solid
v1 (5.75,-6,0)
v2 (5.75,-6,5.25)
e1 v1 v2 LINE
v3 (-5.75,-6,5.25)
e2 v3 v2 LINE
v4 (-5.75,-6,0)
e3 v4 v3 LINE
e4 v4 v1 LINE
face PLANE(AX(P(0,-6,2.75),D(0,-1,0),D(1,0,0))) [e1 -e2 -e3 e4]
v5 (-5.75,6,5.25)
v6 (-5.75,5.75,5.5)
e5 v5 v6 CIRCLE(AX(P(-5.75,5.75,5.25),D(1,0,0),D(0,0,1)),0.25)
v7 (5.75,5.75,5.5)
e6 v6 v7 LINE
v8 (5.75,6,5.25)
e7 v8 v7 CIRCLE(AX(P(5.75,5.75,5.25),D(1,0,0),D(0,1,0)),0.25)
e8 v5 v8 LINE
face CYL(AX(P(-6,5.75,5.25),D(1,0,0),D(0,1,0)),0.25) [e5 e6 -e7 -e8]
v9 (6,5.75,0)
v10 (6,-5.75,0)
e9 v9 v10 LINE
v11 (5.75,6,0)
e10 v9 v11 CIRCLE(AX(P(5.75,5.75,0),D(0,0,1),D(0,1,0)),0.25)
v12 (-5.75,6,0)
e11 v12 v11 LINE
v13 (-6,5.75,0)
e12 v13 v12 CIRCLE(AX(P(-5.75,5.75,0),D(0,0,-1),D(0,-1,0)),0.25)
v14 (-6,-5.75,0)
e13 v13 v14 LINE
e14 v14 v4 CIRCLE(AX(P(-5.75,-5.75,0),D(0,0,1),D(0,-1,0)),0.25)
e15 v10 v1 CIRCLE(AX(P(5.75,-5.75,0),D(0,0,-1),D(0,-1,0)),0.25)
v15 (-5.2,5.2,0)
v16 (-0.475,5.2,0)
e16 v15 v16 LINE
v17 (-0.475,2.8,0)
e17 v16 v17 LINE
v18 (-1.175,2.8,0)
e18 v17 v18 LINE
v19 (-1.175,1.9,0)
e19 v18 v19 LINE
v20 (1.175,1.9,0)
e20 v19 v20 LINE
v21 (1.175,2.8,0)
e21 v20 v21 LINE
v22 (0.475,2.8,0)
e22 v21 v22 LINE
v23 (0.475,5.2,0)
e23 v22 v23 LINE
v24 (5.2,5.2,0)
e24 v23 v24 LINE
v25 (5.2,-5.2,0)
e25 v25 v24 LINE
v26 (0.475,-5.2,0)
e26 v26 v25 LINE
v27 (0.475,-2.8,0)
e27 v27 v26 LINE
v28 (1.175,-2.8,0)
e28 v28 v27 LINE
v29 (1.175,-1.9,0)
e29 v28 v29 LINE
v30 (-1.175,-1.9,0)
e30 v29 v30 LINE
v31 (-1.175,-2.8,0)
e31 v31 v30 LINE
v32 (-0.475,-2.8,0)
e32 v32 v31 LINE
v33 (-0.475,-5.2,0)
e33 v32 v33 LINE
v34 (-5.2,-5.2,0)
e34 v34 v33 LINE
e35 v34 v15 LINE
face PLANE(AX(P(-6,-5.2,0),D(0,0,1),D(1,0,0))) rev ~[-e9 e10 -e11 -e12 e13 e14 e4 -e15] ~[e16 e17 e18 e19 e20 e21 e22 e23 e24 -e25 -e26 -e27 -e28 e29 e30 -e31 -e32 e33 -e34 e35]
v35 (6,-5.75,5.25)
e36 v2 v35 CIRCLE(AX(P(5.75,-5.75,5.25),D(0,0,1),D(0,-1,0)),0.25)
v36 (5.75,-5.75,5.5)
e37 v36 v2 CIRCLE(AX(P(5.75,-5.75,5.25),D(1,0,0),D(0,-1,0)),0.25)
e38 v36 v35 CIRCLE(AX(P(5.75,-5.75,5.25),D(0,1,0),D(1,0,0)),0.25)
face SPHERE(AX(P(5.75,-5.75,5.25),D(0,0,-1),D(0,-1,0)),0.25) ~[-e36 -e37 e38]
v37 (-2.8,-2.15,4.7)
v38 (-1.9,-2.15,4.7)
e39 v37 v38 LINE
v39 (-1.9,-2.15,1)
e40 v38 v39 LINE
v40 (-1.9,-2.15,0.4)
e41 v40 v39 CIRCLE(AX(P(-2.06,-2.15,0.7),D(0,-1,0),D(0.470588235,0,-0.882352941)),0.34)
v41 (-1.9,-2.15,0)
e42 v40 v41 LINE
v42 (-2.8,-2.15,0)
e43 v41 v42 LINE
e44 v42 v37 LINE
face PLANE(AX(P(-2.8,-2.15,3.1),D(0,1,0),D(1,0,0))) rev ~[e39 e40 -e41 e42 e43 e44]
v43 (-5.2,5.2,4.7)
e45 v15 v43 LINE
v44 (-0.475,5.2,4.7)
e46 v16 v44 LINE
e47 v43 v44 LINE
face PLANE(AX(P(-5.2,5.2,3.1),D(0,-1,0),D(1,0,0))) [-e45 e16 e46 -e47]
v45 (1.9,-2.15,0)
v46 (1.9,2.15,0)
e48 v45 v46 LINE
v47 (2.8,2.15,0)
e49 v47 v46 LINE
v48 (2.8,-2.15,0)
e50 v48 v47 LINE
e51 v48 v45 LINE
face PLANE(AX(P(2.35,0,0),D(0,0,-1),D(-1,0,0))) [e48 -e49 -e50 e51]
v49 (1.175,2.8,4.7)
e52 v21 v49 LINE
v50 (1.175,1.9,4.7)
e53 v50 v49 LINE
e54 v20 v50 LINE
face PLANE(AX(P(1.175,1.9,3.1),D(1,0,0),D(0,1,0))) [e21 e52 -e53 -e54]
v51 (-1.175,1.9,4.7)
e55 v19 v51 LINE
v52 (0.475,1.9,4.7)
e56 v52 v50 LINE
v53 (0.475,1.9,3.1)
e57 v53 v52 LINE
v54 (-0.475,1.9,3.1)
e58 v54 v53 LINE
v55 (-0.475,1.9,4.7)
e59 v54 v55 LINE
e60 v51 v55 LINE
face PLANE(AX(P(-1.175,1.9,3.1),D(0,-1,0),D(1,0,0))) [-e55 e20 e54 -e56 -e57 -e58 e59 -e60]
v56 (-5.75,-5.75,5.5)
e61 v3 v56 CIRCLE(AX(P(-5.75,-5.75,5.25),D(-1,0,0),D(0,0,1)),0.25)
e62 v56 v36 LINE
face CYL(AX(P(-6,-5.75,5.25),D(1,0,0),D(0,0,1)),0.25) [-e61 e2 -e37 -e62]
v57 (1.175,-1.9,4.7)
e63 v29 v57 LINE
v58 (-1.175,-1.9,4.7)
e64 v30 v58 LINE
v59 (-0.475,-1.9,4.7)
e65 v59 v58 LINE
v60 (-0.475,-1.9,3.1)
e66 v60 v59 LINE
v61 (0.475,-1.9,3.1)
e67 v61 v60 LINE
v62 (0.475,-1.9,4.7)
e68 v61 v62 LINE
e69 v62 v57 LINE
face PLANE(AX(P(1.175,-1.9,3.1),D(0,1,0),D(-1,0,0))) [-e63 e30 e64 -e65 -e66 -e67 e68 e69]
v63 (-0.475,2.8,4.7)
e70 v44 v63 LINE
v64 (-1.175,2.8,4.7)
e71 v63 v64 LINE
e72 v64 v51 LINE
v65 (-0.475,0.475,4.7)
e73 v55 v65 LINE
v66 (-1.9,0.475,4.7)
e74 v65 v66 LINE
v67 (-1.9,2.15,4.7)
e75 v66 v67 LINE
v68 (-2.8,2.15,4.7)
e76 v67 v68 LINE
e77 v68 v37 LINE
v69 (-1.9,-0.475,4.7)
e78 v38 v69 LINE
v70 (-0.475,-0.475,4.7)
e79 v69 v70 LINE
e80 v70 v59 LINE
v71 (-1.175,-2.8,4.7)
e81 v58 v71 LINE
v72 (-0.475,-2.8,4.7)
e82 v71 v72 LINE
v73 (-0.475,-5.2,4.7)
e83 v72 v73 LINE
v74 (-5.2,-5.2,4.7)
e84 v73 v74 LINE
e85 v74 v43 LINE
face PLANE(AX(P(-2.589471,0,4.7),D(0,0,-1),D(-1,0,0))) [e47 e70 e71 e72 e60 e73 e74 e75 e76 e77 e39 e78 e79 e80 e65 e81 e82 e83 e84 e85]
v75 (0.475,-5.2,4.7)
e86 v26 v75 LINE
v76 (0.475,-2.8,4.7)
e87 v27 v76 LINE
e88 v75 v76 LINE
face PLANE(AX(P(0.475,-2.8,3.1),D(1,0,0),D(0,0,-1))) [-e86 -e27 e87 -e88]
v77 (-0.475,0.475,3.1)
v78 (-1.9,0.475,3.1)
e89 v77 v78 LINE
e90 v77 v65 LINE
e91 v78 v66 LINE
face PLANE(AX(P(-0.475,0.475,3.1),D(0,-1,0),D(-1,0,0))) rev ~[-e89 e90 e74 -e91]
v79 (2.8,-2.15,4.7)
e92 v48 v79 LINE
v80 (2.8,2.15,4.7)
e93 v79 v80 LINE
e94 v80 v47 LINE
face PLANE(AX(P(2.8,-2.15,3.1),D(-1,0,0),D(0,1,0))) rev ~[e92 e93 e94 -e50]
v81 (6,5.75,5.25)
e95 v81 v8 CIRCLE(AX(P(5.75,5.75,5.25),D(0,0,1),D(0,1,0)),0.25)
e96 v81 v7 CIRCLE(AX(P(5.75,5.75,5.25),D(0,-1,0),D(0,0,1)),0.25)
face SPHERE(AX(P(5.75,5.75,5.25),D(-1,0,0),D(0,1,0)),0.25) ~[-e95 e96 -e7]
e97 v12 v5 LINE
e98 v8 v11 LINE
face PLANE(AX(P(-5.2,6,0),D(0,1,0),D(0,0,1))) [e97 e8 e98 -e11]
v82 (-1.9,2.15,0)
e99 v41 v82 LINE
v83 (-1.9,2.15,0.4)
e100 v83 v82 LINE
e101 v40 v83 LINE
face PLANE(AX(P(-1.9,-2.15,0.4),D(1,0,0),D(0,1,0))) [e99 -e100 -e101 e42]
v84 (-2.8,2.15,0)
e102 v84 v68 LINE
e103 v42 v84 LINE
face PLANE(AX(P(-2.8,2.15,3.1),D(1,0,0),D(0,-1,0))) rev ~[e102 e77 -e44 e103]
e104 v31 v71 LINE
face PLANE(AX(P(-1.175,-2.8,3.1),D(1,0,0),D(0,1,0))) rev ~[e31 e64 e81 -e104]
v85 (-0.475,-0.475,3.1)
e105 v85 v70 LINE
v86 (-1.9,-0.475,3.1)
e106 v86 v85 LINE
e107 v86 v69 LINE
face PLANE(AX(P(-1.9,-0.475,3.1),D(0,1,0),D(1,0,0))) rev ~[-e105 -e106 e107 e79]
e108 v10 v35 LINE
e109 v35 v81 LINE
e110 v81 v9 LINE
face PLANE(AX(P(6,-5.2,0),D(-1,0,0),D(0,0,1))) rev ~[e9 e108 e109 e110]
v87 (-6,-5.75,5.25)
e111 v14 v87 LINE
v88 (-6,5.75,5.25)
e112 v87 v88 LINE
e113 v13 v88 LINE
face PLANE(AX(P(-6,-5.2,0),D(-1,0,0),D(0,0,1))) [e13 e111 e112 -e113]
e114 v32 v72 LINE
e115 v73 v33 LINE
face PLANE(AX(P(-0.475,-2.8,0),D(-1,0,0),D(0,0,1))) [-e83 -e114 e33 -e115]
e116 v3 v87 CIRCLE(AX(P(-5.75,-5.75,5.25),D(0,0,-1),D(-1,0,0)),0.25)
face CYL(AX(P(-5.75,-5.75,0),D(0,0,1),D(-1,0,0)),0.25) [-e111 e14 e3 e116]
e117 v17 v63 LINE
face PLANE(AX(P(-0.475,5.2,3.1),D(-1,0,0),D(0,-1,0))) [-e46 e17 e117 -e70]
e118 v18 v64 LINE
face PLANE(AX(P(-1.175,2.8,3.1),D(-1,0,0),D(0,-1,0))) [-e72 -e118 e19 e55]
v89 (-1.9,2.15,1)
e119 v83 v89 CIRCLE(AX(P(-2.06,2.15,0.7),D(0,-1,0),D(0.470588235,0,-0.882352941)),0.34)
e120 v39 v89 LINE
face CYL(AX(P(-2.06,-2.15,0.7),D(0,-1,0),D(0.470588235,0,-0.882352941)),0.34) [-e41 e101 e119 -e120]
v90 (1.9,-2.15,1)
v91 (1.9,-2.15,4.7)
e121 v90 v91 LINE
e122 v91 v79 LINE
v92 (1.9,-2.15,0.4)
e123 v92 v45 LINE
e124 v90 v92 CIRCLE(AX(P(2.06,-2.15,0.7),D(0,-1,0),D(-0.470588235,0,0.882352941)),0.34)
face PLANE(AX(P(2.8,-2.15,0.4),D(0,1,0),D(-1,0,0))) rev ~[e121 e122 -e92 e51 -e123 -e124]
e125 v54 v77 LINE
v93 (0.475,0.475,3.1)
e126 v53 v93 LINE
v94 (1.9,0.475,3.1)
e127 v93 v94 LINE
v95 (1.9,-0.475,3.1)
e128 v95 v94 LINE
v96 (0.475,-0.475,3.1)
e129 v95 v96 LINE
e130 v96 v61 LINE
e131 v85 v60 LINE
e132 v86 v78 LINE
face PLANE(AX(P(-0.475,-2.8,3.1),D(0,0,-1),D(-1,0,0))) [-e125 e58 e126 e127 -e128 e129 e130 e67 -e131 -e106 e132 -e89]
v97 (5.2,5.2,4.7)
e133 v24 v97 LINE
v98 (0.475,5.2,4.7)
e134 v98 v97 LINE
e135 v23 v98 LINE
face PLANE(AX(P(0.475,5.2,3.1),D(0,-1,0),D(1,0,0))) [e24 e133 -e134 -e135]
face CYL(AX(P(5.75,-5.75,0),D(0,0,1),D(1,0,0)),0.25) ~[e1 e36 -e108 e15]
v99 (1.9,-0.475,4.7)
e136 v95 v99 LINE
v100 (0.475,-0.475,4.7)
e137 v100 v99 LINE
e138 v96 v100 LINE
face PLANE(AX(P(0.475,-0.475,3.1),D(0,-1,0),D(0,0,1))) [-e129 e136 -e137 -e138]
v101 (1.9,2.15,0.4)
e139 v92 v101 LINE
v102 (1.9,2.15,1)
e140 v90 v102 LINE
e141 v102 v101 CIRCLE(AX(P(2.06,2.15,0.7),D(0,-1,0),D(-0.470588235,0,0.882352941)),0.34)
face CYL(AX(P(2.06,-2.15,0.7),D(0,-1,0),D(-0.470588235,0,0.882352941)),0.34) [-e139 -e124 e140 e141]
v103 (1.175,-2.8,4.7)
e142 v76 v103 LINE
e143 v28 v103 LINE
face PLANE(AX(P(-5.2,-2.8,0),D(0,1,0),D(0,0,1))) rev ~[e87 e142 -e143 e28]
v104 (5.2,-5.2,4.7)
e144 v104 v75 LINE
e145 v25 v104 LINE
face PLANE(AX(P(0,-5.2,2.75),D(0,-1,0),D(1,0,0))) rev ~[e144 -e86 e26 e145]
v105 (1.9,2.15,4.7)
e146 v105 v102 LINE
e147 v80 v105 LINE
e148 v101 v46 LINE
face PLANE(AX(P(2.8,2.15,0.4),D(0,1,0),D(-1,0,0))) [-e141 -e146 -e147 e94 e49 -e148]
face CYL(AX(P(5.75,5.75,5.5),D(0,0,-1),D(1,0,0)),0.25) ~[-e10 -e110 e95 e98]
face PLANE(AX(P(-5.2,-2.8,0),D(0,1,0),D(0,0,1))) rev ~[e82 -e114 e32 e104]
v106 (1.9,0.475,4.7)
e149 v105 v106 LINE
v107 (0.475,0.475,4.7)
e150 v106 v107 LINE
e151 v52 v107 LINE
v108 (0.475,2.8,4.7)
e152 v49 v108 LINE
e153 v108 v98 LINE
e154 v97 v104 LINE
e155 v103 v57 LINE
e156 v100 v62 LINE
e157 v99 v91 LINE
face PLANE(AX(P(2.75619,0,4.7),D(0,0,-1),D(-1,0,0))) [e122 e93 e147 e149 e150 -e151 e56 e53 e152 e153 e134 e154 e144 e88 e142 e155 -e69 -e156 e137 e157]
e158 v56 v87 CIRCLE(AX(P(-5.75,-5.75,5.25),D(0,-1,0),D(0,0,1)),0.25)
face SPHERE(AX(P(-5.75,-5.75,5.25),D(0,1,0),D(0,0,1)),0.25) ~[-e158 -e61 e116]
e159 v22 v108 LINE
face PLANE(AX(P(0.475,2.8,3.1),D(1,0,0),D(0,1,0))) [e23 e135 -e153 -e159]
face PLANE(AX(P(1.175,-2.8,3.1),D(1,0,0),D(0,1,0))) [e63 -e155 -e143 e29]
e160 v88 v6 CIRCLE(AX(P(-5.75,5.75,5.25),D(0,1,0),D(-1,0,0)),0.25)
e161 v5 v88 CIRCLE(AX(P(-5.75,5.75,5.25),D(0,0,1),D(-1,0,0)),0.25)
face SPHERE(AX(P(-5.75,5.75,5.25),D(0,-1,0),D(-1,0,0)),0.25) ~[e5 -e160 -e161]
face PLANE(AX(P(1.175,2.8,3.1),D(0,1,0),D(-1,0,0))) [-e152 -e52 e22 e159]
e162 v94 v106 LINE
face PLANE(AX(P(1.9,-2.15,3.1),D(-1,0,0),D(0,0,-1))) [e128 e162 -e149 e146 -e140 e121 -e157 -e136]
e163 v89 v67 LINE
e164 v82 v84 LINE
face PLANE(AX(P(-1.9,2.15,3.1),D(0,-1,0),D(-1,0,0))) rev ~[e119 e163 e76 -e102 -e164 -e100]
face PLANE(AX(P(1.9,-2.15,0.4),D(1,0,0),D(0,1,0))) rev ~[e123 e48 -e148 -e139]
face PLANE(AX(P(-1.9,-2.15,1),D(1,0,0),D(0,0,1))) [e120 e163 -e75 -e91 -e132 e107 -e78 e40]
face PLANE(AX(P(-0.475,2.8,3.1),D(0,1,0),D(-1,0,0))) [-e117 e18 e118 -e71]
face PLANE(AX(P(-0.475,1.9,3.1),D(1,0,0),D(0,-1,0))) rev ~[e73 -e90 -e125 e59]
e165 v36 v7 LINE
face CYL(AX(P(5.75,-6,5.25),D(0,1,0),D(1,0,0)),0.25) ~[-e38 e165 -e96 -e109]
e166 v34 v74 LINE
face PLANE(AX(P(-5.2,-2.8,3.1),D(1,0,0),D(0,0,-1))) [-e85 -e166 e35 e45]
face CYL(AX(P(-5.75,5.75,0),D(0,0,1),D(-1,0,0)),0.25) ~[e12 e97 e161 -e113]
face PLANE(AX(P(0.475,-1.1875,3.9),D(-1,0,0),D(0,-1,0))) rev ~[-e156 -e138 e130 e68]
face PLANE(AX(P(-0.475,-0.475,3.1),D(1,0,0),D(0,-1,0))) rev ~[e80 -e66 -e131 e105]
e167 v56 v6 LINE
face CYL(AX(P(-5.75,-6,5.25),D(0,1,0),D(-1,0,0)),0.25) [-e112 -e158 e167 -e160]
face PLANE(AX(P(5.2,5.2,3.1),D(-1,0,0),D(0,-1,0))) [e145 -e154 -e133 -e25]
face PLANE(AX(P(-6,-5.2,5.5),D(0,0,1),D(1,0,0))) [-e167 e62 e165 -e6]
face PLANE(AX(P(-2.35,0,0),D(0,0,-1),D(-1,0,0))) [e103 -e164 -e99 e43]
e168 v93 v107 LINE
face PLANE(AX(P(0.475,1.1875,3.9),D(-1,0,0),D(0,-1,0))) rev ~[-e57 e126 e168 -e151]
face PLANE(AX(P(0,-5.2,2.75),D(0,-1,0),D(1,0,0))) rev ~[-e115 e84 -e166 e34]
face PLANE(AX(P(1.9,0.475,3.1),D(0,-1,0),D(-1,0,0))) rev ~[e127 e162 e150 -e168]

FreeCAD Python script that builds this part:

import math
import FreeCAD as App
import Part
import Sketcher
Q = App.Units.Quantity


def edges_at(feature, points):
    """Names of the edges that pass closest to the given points."""
    edges = feature.Shape.Edges
    near = lambda p: min(range(len(edges)), key=lambda i: edges[i].distToShape(Part.Vertex(*p))[0])
    return sorted({f"Edge{near(p) + 1}" for p in points})

doc = App.newDocument("Part")
params = doc.addObject("Spreadsheet::Sheet", "Params")
for row, (alias, value) in enumerate([
    ("sketch1_radius", "0.34 mm"),
    ("sketch1_width", "0.9 mm"),
    ("sketch1_width2", "5.6 mm"),
    ("sketch1_height", "5.1 mm"),
    ("sketch1_height2", "2.1 mm"),
    ("pad1_length", "4.3 mm"),
    ("sketch2_width", "5.6 mm"),
    ("sketch2_height", "2.4 mm"),
    ("pad2_length", "0.65 mm"),
    ("sketch3_height", "2.4 mm"),
    ("sketch3_width", "4.95 mm"),
    ("pad3_length", "2.4 mm"),
    ("sketch4_width", "8 mm"),
    ("sketch4_height", "2.4 mm"),
    ("pad4_length", "3.85 mm"),
    ("sketch5_width", "8.8 mm"),
    ("sketch5_height", "2.4 mm"),
    ("pad5_length", "3.2 mm"),
    ("sketch6_height", "8 mm"),
    ("sketch6_width", "11.2 mm"),
    ("sketch6_width2", "0.8 mm"),
    ("sketch6_width3", "0.7 mm"),
    ("sketch6_height2", "2.4 mm"),
    ("pad6_length", "3.1 mm"),
    ("sketch7_width", "0.9 mm"),
    ("sketch7_height", "4.3 mm"),
    ("pad7_length", "0.4 mm"),
    ("sketch8_width", "0.9 mm"),
    ("sketch8_height", "4.3 mm"),
    ("pad8_length", "0.4 mm"),
    ("sketch9_width", "8.8 mm"),
    ("sketch9_height", "5.5 mm"),
    ("pad9_length", "0.8 mm"),
    ("sketch10_width", "12 mm"),
    ("sketch10_width2", "0.8 mm"),
    ("sketch10_height", "3.1 mm"),
    ("sketch10_height2", "5.5 mm"),
    ("sketch10_width3", "0.95 mm"),
    ("pad10_length", "2.4 mm"),
    ("sketch11_width", "12 mm"),
    ("sketch11_height", "5.5 mm"),
    ("pad11_length", "0.8 mm"),
    ("sketch12_width", "0.7 mm"),
    ("sketch12_width2", "0.9 mm"),
    ("sketch12_height", "2.4 mm"),
    ("sketch12_height2", "10.4 mm"),
    ("sketch12_height3", "4.3 mm"),
    ("pocket1_length", "1.6 mm"),
    ("sketch13_height", "1.6 mm"),
    ("sketch14_height", "1.6 mm"),
    ("sketch15_width", "0.9 mm"),
    ("sketch15_width2", "0.7 mm"),
    ("sketch15_height", "4.3 mm"),
    ("sketch15_height2", "2.4 mm"),
    ("sketch15_height3", "10.4 mm"),
    ("pocket4_length", "1.6 mm"),
    ("fillet_radius", "0.25 mm"),
], start=1):
    params.set(f"A{row}", alias)
    params.set(f"B{row}", "=" + value)
    params.setAlias(f"B{row}", alias)

body = doc.addObject("PartDesign::Body", "Body")

sketch1 = body.newObject("Sketcher::SketchObject", "Sketch")
sketch1.AttachmentSupport = (doc.getObject("XZ_Plane"), [""])
sketch1.MapMode = "FlatFace"
sketch1.AttachmentOffset = App.Placement(App.Vector(0, 0, 2.15), App.Rotation())
sketch1.addGeometry([
    Part.LineSegment(App.Vector(1.9, 0.4, 0), App.Vector(2.8, 0.4, 0)),
    Part.LineSegment(App.Vector(2.8, 0.4, 0), App.Vector(2.8, 5.5, 0)),
    Part.LineSegment(App.Vector(2.8, 5.5, 0), App.Vector(-2.8, 5.5, 0)),
    Part.LineSegment(App.Vector(-2.8, 5.5, 0), App.Vector(-2.8, 0.4, 0)),
    Part.LineSegment(App.Vector(-2.8, 0.4, 0), App.Vector(-1.9, 0.4, 0)),
    Part.ArcOfCircle(Part.Circle(App.Vector(-2.06, 0.7, 0), App.Vector(0, 0, 1), 0.34), math.radians(-62), math.radians(62)),
    Part.LineSegment(App.Vector(-1.9, 1, 0), App.Vector(-1.9, 3.1, 0)),
    Part.LineSegment(App.Vector(-1.9, 3.1, 0), App.Vector(1.9, 3.1, 0)),
    Part.LineSegment(App.Vector(1.9, 3.1, 0), App.Vector(1.9, 1, 0)),
    Part.ArcOfCircle(Part.Circle(App.Vector(2.06, 0.7, 0), App.Vector(0, 0, 1), 0.34), math.radians(118), math.radians(242)),
], False)
sketch1.addConstraint([
    Sketcher.Constraint("Coincident", 0, 2, 1, 1),
    Sketcher.Constraint("Coincident", 1, 2, 2, 1),
    Sketcher.Constraint("Coincident", 2, 2, 3, 1),
    Sketcher.Constraint("Coincident", 3, 2, 4, 1),
    Sketcher.Constraint("Coincident", 4, 2, 5, 1),
    Sketcher.Constraint("Coincident", 5, 2, 6, 1),
    Sketcher.Constraint("Coincident", 6, 2, 7, 1),
    Sketcher.Constraint("Coincident", 7, 2, 8, 1),
    Sketcher.Constraint("Coincident", 8, 2, 9, 1),
    Sketcher.Constraint("Coincident", 9, 2, 0, 1),
    Sketcher.Constraint("Horizontal", 0),
    Sketcher.Constraint("Vertical", 1),
    Sketcher.Constraint("Horizontal", 2),
    Sketcher.Constraint("Vertical", 3),
    Sketcher.Constraint("Horizontal", 4),
    Sketcher.Constraint("Vertical", 6),
    Sketcher.Constraint("Horizontal", 7),
    Sketcher.Constraint("Vertical", 8),
    Sketcher.Constraint("Equal", 5, 9),
    Sketcher.Constraint("Symmetric", 5, 3, 9, 3, -2),
    Sketcher.Constraint("Symmetric", 0, 2, 3, 2, -2),
    Sketcher.Constraint("Horizontal", 5, 2, 8, 2),
    Sketcher.Constraint("Vertical", 4, 2, 5, 2),
    Sketcher.Constraint("Radius", 5, Q("0.34 mm")),
    Sketcher.Constraint("DistanceX", 0, 1, 0, 2, Q("0.9 mm")),
    Sketcher.Constraint("DistanceX", 2, 2, 2, 1, Q("5.6 mm")),
    Sketcher.Constraint("DistanceY", 1, 1, 1, 2, Q("5.1 mm")),
    Sketcher.Constraint("DistanceY", 6, 1, 6, 2, Q("2.1 mm")),
    Sketcher.Constraint("DistanceY", -1, 1, 5, 2, Q("1 mm")),
    Sketcher.Constraint("DistanceY", -1, 1, 5, 3, Q("0.7 mm")),
])
sketch1.setExpression("Constraints[23]", "Params.sketch1_radius")
sketch1.setExpression("Constraints[24]", "Params.sketch1_width")
sketch1.setExpression("Constraints[25]", "Params.sketch1_width2")
sketch1.setExpression("Constraints[26]", "Params.sketch1_height")
sketch1.setExpression("Constraints[27]", "Params.sketch1_height2")
pad1 = body.newObject("PartDesign::Pad", "Pad")
pad1.Profile = sketch1
pad1.setExpression("Length", "Params.pad1_length")
pad1.Reversed = True

sketch2 = body.newObject("Sketcher::SketchObject", "Sketch001")
sketch2.AttachmentSupport = (doc.getObject("XZ_Plane"), [""])
sketch2.MapMode = "FlatFace"
sketch2.AttachmentOffset = App.Placement(App.Vector(0, 0, 2.15), App.Rotation())
sketch2.addGeometry([
    Part.LineSegment(App.Vector(-2.8, 5.5, 0), App.Vector(-2.8, 3.1, 0)),
    Part.LineSegment(App.Vector(-2.8, 3.1, 0), App.Vector(2.8, 3.1, 0)),
    Part.LineSegment(App.Vector(2.8, 3.1, 0), App.Vector(2.8, 5.5, 0)),
    Part.LineSegment(App.Vector(2.8, 5.5, 0), App.Vector(-2.8, 5.5, 0)),
], False)
sketch2.addConstraint([
    Sketcher.Constraint("Coincident", 0, 2, 1, 1),
    Sketcher.Constraint("Coincident", 1, 2, 2, 1),
    Sketcher.Constraint("Coincident", 2, 2, 3, 1),
    Sketcher.Constraint("Coincident", 3, 2, 0, 1),
    Sketcher.Constraint("Vertical", 0),
    Sketcher.Constraint("Horizontal", 1),
    Sketcher.Constraint("Vertical", 2),
    Sketcher.Constraint("Horizontal", 3),
    Sketcher.Constraint("DistanceX", 1, 1, 1, 2, Q("5.6 mm")),
    Sketcher.Constraint("DistanceY", 0, 2, 0, 1, Q("2.4 mm")),
    Sketcher.Constraint("DistanceX", 0, 2, -1, 1, Q("2.8 mm")),
    Sketcher.Constraint("DistanceY", -1, 1, 0, 2, Q("3.1 mm")),
])
sketch2.setExpression("Constraints[8]", "Params.sketch2_width")
sketch2.setExpression("Constraints[9]", "Params.sketch2_height")
pad2 = body.newObject("PartDesign::Pad", "Pad001")
pad2.Profile = sketch2
pad2.setExpression("Length", "Params.pad2_length")

sketch3 = body.newObject("Sketcher::SketchObject", "Sketch002")
sketch3.AttachmentSupport = (doc.getObject("YZ_Plane"), [""])
sketch3.MapMode = "FlatFace"
sketch3.AttachmentOffset = App.Placement(App.Vector(0, 0, -2.8), App.Rotation())
sketch3.addGeometry([
    Part.LineSegment(App.Vector(2.1, 3.1, 0), App.Vector(-2.8, 3.1, 0)),
    Part.LineSegment(App.Vector(-2.8, 3.1, 0), App.Vector(-2.8, 5.5, 0)),
    Part.LineSegment(App.Vector(-2.8, 5.5, 0), App.Vector(2.1, 5.5, 0)),
    Part.LineSegment(App.Vector(2.1, 5.5, 0), App.Vector(2.1, 3.1, 0)),
], False)
sketch3.addConstraint([
    Sketcher.Constraint("Coincident", 0, 2, 1, 1),
    Sketcher.Constraint("Coincident", 1, 2, 2, 1),
    Sketcher.Constraint("Coincident", 2, 2, 3, 1),
    Sketcher.Constraint("Coincident", 3, 2, 0, 1),
    Sketcher.Constraint("Horizontal", 0),
    Sketcher.Constraint("Vertical", 1),
    Sketcher.Constraint("Horizontal", 2),
    Sketcher.Constraint("Vertical", 3),
    Sketcher.Constraint("DistanceY", 1, 1, 1, 2, Q("2.4 mm")),
    Sketcher.Constraint("DistanceX", 0, 2, 0, 1, Q("4.95 mm")),
    Sketcher.Constraint("DistanceX", 0, 2, -1, 1, Q("2.8 mm")),
    Sketcher.Constraint("DistanceY", -1, 1, 0, 2, Q("3.1 mm")),
])
sketch3.setExpression("Constraints[8]", "Params.sketch3_height")
sketch3.setExpression("Constraints[9]", "Params.sketch3_width")
pad3 = body.newObject("PartDesign::Pad", "Pad002")
pad3.Profile = sketch3
pad3.setExpression("Length", "Params.pad3_length")
pad3.Reversed = True

sketch4 = body.newObject("Sketcher::SketchObject", "Sketch003")
sketch4.AttachmentSupport = (doc.getObject("XZ_Plane"), [""])
sketch4.MapMode = "FlatFace"
sketch4.AttachmentOffset = App.Placement(App.Vector(0, 0, -2.15), App.Rotation())
sketch4.addGeometry([
    Part.LineSegment(App.Vector(2.8, 5.5, 0), App.Vector(2.8, 3.1, 0)),
    Part.LineSegment(App.Vector(2.8, 3.1, 0), App.Vector(-5.2, 3.1, 0)),
    Part.LineSegment(App.Vector(-5.2, 3.1, 0), App.Vector(-5.2, 5.5, 0)),
    Part.LineSegment(App.Vector(-5.2, 5.5, 0), App.Vector(2.8, 5.5, 0)),
], False)
sketch4.addConstraint([
    Sketcher.Constraint("Coincident", 0, 2, 1, 1),
    Sketcher.Constraint("Coincident", 1, 2, 2, 1),
    Sketcher.Constraint("Coincident", 2, 2, 3, 1),
    Sketcher.Constraint("Coincident", 3, 2, 0, 1),
    Sketcher.Constraint("Vertical", 0),
    Sketcher.Constraint("Horizontal", 1),
    Sketcher.Constraint("Vertical", 2),
    Sketcher.Constraint("Horizontal", 3),
    Sketcher.Constraint("DistanceX", 1, 2, 1, 1, Q("8 mm")),
    Sketcher.Constraint("DistanceY", 0, 2, 0, 1, Q("2.4 mm")),
    Sketcher.Constraint("DistanceX", -1, 1, 0, 2, Q("2.8 mm")),
    Sketcher.Constraint("DistanceY", -1, 1, 0, 2, Q("3.1 mm")),
])
sketch4.setExpression("Constraints[8]", "Params.sketch4_width")
sketch4.setExpression("Constraints[9]", "Params.sketch4_height")
pad4 = body.newObject("PartDesign::Pad", "Pad003")
pad4.Profile = sketch4
pad4.setExpression("Length", "Params.pad4_length")
pad4.Reversed = True

sketch5 = body.newObject("Sketcher::SketchObject", "Sketch004")
sketch5.AttachmentSupport = (doc.getObject("YZ_Plane"), [""])
sketch5.MapMode = "FlatFace"
sketch5.AttachmentOffset = App.Placement(App.Vector(0, 0, 2.8), App.Rotation())
sketch5.addGeometry([
    Part.LineSegment(App.Vector(6, 5.5, 0), App.Vector(-2.8, 5.5, 0)),
    Part.LineSegment(App.Vector(-2.8, 5.5, 0), App.Vector(-2.8, 3.1, 0)),
    Part.LineSegment(App.Vector(-2.8, 3.1, 0), App.Vector(6, 3.1, 0)),
    Part.LineSegment(App.Vector(6, 3.1, 0), App.Vector(6, 5.5, 0)),
], False)
sketch5.addConstraint([
    Sketcher.Constraint("Coincident", 0, 2, 1, 1),
    Sketcher.Constraint("Coincident", 1, 2, 2, 1),
    Sketcher.Constraint("Coincident", 2, 2, 3, 1),
    Sketcher.Constraint("Coincident", 3, 2, 0, 1),
    Sketcher.Constraint("Horizontal", 0),
    Sketcher.Constraint("Vertical", 1),
    Sketcher.Constraint("Horizontal", 2),
    Sketcher.Constraint("Vertical", 3),
    Sketcher.Constraint("DistanceX", 0, 2, 0, 1, Q("8.8 mm")),
    Sketcher.Constraint("DistanceY", 1, 2, 1, 1, Q("2.4 mm")),
    Sketcher.Constraint("DistanceX", -1, 1, 2, 2, Q("6 mm")),
    Sketcher.Constraint("DistanceY", -1, 1, 0, 2, Q("5.5 mm")),
])
sketch5.setExpression("Constraints[8]", "Params.sketch5_width")
sketch5.setExpression("Constraints[9]", "Params.sketch5_height")
pad5 = body.newObject("PartDesign::Pad", "Pad004")
pad5.Profile = sketch5
pad5.setExpression("Length", "Params.pad5_length")

sketch6 = body.newObject("Sketcher::SketchObject", "Sketch005")
sketch6.AttachmentSupport = (doc.getObject("XY_Plane"), [""])
sketch6.MapMode = "FlatFace"
sketch6.AttachmentOffset = App.Placement(App.Vector(0, 0, 3.1), App.Rotation())
sketch6.addGeometry([
    Part.LineSegment(App.Vector(-0.5, 5.2, 0), App.Vector(-5.2, 5.2, 0)),
    Part.LineSegment(App.Vector(-5.2, 5.2, 0), App.Vector(-5.2, 6, 0)),
    Part.LineSegment(App.Vector(-5.2, 6, 0), App.Vector(6, 6, 0)),
    Part.LineSegment(App.Vector(6, 6, 0), App.Vector(6, -2.8, 0)),
    Part.LineSegment(App.Vector(6, -2.8, 0), App.Vector(5.2, -2.8, 0)),
    Part.LineSegment(App.Vector(5.2, -2.8, 0), App.Vector(5.2, 5.2, 0)),
    Part.LineSegment(App.Vector(5.2, 5.2, 0), App.Vector(0.5, 5.2, 0)),
    Part.LineSegment(App.Vector(0.5, 5.2, 0), App.Vector(0.5, 2.8, 0)),
    Part.LineSegment(App.Vector(0.5, 2.8, 0), App.Vector(1.2, 2.8, 0)),
    Part.LineSegment(App.Vector(1.2, 2.8, 0), App.Vector(1.2, 1.9, 0)),
    Part.LineSegment(App.Vector(1.2, 1.9, 0), App.Vector(-1.2, 1.9, 0)),
    Part.LineSegment(App.Vector(-1.2, 1.9, 0), App.Vector(-1.2, 2.8, 0)),
    Part.LineSegment(App.Vector(-1.2, 2.8, 0), App.Vector(-0.5, 2.8, 0)),
    Part.LineSegment(App.Vector(-0.5, 2.8, 0), App.Vector(-0.5, 5.2, 0)),
    Part.LineSegment(App.Vector(1.2, -1.9, 0), App.Vector(1.2, -2.8, 0)),
    Part.LineSegment(App.Vector(1.2, -2.8, 0), App.Vector(-1.2, -2.8, 0)),
    Part.LineSegment(App.Vector(-1.2, -2.8, 0), App.Vector(-1.2, -1.9, 0)),
    Part.LineSegment(App.Vector(-1.2, -1.9, 0), App.Vector(1.2, -1.9, 0)),
], False)
sketch6.addConstraint([
    Sketcher.Constraint("Coincident", 0, 2, 1, 1),
    Sketcher.Constraint("Coincident", 1, 2, 2, 1),
    Sketcher.Constraint("Coincident", 2, 2, 3, 1),
    Sketcher.Constraint("Coincident", 3, 2, 4, 1),
    Sketcher.Constraint("Coincident", 4, 2, 5, 1),
    Sketcher.Constraint("Coincident", 5, 2, 6, 1),
    Sketcher.Constraint("Coincident", 6, 2, 7, 1),
    Sketcher.Constraint("Coincident", 7, 2, 8, 1),
    Sketcher.Constraint("Coincident", 8, 2, 9, 1),
    Sketcher.Constraint("Coincident", 9, 2, 10, 1),
    Sketcher.Constraint("Coincident", 10, 2, 11, 1),
    Sketcher.Constraint("Coincident", 11, 2, 12, 1),
    Sketcher.Constraint("Coincident", 12, 2, 13, 1),
    Sketcher.Constraint("Coincident", 13, 2, 0, 1),
    Sketcher.Constraint("Coincident", 14, 2, 15, 1),
    Sketcher.Constraint("Coincident", 15, 2, 16, 1),
    Sketcher.Constraint("Coincident", 16, 2, 17, 1),
    Sketcher.Constraint("Coincident", 17, 2, 14, 1),
    Sketcher.Constraint("Horizontal", 0),
    Sketcher.Constraint("Vertical", 1),
    Sketcher.Constraint("Horizontal", 2),
    Sketcher.Constraint("Vertical", 3),
    Sketcher.Constraint("Horizontal", 4),
    Sketcher.Constraint("Vertical", 5),
    Sketcher.Constraint("Horizontal", 6),
    Sketcher.Constraint("Vertical", 7),
    Sketcher.Constraint("Horizontal", 8),
    Sketcher.Constraint("Vertical", 9),
    Sketcher.Constraint("Horizontal", 10),
    Sketcher.Constraint("Vertical", 11),
    Sketcher.Constraint("Horizontal", 12),
    Sketcher.Constraint("Vertical", 13),
    Sketcher.Constraint("Vertical", 14),
    Sketcher.Constraint("Horizontal", 15),
    Sketcher.Constraint("Vertical", 16),
    Sketcher.Constraint("Horizontal", 17),
    Sketcher.Constraint("Symmetric", 11, 2, 14, 2, -1, 1),
    Sketcher.Constraint("Symmetric", 8, 2, 15, 2, -1, 1),
    Sketcher.Constraint("Symmetric", 0, 2, 5, 2, -2),
    Sketcher.Constraint("Symmetric", 10, 2, 16, 2, -1),
    Sketcher.Constraint("Horizontal", 4, 2, 14, 2),
    Sketcher.Constraint("Equal", 0, 6),
    Sketcher.Constraint("Equal", 4, 1),
    Sketcher.Constraint("DistanceY", 5, 1, 5, 2, Q("8 mm")),
    Sketcher.Constraint("DistanceX", 2, 1, 2, 2, Q("11.2 mm")),
    Sketcher.Constraint("DistanceX", 4, 2, 4, 1, Q("0.8 mm")),
    Sketcher.Constraint("DistanceX", 8, 1, 8, 2, Q("0.7 mm")),
    Sketcher.Constraint("DistanceY", 7, 2, 7, 1, Q("2.4 mm")),
    Sketcher.Constraint("DistanceY", 9, 2, 9, 1, Q("0.9 mm")),
    Sketcher.Constraint("DistanceX", 10, 2, 10, 1, Q("2.35 mm")),
])
sketch6.setExpression("Constraints[43]", "Params.sketch6_height")
sketch6.setExpression("Constraints[44]", "Params.sketch6_width")
sketch6.setExpression("Constraints[45]", "Params.sketch6_width2")
sketch6.setExpression("Constraints[46]", "Params.sketch6_width3")
sketch6.setExpression("Constraints[47]", "Params.sketch6_height2")
pad6 = body.newObject("PartDesign::Pad", "Pad005")
pad6.Profile = sketch6
pad6.setExpression("Length", "Params.pad6_length")
pad6.Reversed = True

sketch7 = body.newObject("Sketcher::SketchObject", "Sketch006")
sketch7.AttachmentSupport = (doc.getObject("XY_Plane"), [""])
sketch7.MapMode = "FlatFace"
sketch7.AttachmentOffset = App.Placement(App.Vector(0, 0, 0.4), App.Rotation())
sketch7.addGeometry([
    Part.LineSegment(App.Vector(-1.9, 2.1, 0), App.Vector(-1.9, -2.1, 0)),
    Part.LineSegment(App.Vector(-1.9, -2.1, 0), App.Vector(-2.8, -2.1, 0)),
    Part.LineSegment(App.Vector(-2.8, -2.1, 0), App.Vector(-2.8, 2.1, 0)),
    Part.LineSegment(App.Vector(-2.8, 2.1, 0), App.Vector(-1.9, 2.1, 0)),
], False)
sketch7.addConstraint([
    Sketcher.Constraint("Coincident", 0, 2, 1, 1),
    Sketcher.Constraint("Coincident", 1, 2, 2, 1),
    Sketcher.Constraint("Coincident", 2, 2, 3, 1),
    Sketcher.Constraint("Coincident", 3, 2, 0, 1),
    Sketcher.Constraint("Vertical", 0),
    Sketcher.Constraint("Horizontal", 1),
    Sketcher.Constraint("Vertical", 2),
    Sketcher.Constraint("Horizontal", 3),
    Sketcher.Constraint("DistanceX", 1, 2, 1, 1, Q("0.9 mm")),
    Sketcher.Constraint("DistanceY", 0, 2, 0, 1, Q("4.3 mm")),
    Sketcher.Constraint("DistanceX", 0, 2, -1, 1, Q("1.9 mm")),
    Sketcher.Constraint("DistanceY", 0, 2, -1, 1, Q("2.15 mm")),
])
sketch7.setExpression("Constraints[8]", "Params.sketch7_width")
sketch7.setExpression("Constraints[9]", "Params.sketch7_height")
pad7 = body.newObject("PartDesign::Pad", "Pad006")
pad7.Profile = sketch7
pad7.setExpression("Length", "Params.pad7_length")
pad7.Reversed = True

sketch8 = body.newObject("Sketcher::SketchObject", "Sketch007")
sketch8.AttachmentSupport = (doc.getObject("XY_Plane"), [""])
sketch8.MapMode = "FlatFace"
sketch8.AttachmentOffset = App.Placement(App.Vector(0, 0, 0.4), App.Rotation())
sketch8.addGeometry([
    Part.LineSegment(App.Vector(2.8, 2.1, 0), App.Vector(2.8, -2.1, 0)),
    Part.LineSegment(App.Vector(2.8, -2.1, 0), App.Vector(1.9, -2.1, 0)),
    Part.LineSegment(App.Vector(1.9, -2.1, 0), App.Vector(1.9, 2.1, 0)),
    Part.LineSegment(App.Vector(1.9, 2.1, 0), App.Vector(2.8, 2.1, 0)),
], False)
sketch8.addConstraint([
    Sketcher.Constraint("Coincident", 0, 2, 1, 1),
    Sketcher.Constraint("Coincident", 1, 2, 2, 1),
    Sketcher.Constraint("Coincident", 2, 2, 3, 1),
    Sketcher.Constraint("Coincident", 3, 2, 0, 1),
    Sketcher.Constraint("Vertical", 0),
    Sketcher.Constraint("Horizontal", 1),
    Sketcher.Constraint("Vertical", 2),
    Sketcher.Constraint("Horizontal", 3),
    Sketcher.Constraint("DistanceX", 1, 2, 1, 1, Q("0.9 mm")),
    Sketcher.Constraint("DistanceY", 0, 2, 0, 1, Q("4.3 mm")),
    Sketcher.Constraint("DistanceX", -1, 1, 0, 2, Q("2.8 mm")),
    Sketcher.Constraint("DistanceY", 0, 2, -1, 1, Q("2.15 mm")),
])
sketch8.setExpression("Constraints[8]", "Params.sketch8_width")
sketch8.setExpression("Constraints[9]", "Params.sketch8_height")
pad8 = body.newObject("PartDesign::Pad", "Pad007")
pad8.Profile = sketch8
pad8.setExpression("Length", "Params.pad8_length")
pad8.Reversed = True

sketch9 = body.newObject("Sketcher::SketchObject", "Sketch008")
sketch9.AttachmentSupport = (doc.getObject("YZ_Plane"), [""])
sketch9.MapMode = "FlatFace"
sketch9.AttachmentOffset = App.Placement(App.Vector(0, 0, -5.2), App.Rotation())
sketch9.addGeometry([
    Part.LineSegment(App.Vector(6, 0, 0), App.Vector(-3, 0, 0)),
    Part.LineSegment(App.Vector(-3, 0, 0), App.Vector(-3, 6, 0)),
    Part.LineSegment(App.Vector(-3, 6, 0), App.Vector(6, 6, 0)),
    Part.LineSegment(App.Vector(6, 6, 0), App.Vector(6, 0, 0)),
], False)
sketch9.addConstraint([
    Sketcher.Constraint("Coincident", 0, 2, 1, 1),
    Sketcher.Constraint("Coincident", 1, 2, 2, 1),
    Sketcher.Constraint("Coincident", 2, 2, 3, 1),
    Sketcher.Constraint("Coincident", 3, 2, 0, 1),
    Sketcher.Constraint("Horizontal", 0),
    Sketcher.Constraint("Vertical", 1),
    Sketcher.Constraint("Horizontal", 2),
    Sketcher.Constraint("Vertical", 3),
    Sketcher.Constraint("PointOnObject", 0, 2, -1),
    Sketcher.Constraint("DistanceX", 0, 2, 0, 1, Q("8.8 mm")),
    Sketcher.Constraint("DistanceY", 1, 1, 1, 2, Q("5.5 mm")),
    Sketcher.Constraint("DistanceX", -1, 1, 2, 2, Q("6 mm")),
])
sketch9.setExpression("Constraints[9]", "Params.sketch9_width")
sketch9.setExpression("Constraints[10]", "Params.sketch9_height")
pad9 = body.newObject("PartDesign::Pad", "Pad008")
pad9.Profile = sketch9
pad9.setExpression("Length", "Params.pad9_length")
pad9.Reversed = True

sketch10 = body.newObject("Sketcher::SketchObject", "Sketch009")
sketch10.AttachmentSupport = (doc.getObject("XZ_Plane"), [""])
sketch10.MapMode = "FlatFace"
sketch10.AttachmentOffset = App.Placement(App.Vector(0, 0, 2.8), App.Rotation())
sketch10.addGeometry([
    Part.LineSegment(App.Vector(-5.2, 3.1, 0), App.Vector(-0.5, 3.1, 0)),
    Part.LineSegment(App.Vector(-0.5, 3.1, 0), App.Vector(-0.5, 0, 0)),
    Part.LineSegment(App.Vector(-0.5, 0, 0), App.Vector(0.5, 0, 0)),
    Part.LineSegment(App.Vector(0.5, 0, 0), App.Vector(0.5, 3.1, 0)),
    Part.LineSegment(App.Vector(0.5, 3.1, 0), App.Vector(5.2, 3.1, 0)),
    Part.LineSegment(App.Vector(5.2, 3.1, 0), App.Vector(5.2, 0, 0)),
    Part.LineSegment(App.Vector(5.2, 0, 0), App.Vector(6, 0, 0)),
    Part.LineSegment(App.Vector(6, 0, 0), App.Vector(6, 5.5, 0)),
    Part.LineSegment(App.Vector(6, 5.5, 0), App.Vector(-6, 5.5, 0)),
    Part.LineSegment(App.Vector(-6, 5.5, 0), App.Vector(-6, 0, 0)),
    Part.LineSegment(App.Vector(-6, 0, 0), App.Vector(-5.2, 0, 0)),
    Part.LineSegment(App.Vector(-5.2, 0, 0), App.Vector(-5.2, 3.1, 0)),
], False)
sketch10.addConstraint([
    Sketcher.Constraint("Coincident", 0, 2, 1, 1),
    Sketcher.Constraint("Coincident", 1, 2, 2, 1),
    Sketcher.Constraint("Coincident", 2, 2, 3, 1),
    Sketcher.Constraint("Coincident", 3, 2, 4, 1),
    Sketcher.Constraint("Coincident", 4, 2, 5, 1),
    Sketcher.Constraint("Coincident", 5, 2, 6, 1),
    Sketcher.Constraint("Coincident", 6, 2, 7, 1),
    Sketcher.Constraint("Coincident", 7, 2, 8, 1),
    Sketcher.Constraint("Coincident", 8, 2, 9, 1),
    Sketcher.Constraint("Coincident", 9, 2, 10, 1),
    Sketcher.Constraint("Coincident", 10, 2, 11, 1),
    Sketcher.Constraint("Coincident", 11, 2, 0, 1),
    Sketcher.Constraint("Horizontal", 0),
    Sketcher.Constraint("Vertical", 1),
    Sketcher.Constraint("Horizontal", 2),
    Sketcher.Constraint("Vertical", 3),
    Sketcher.Constraint("Horizontal", 4),
    Sketcher.Constraint("Vertical", 5),
    Sketcher.Constraint("Horizontal", 6),
    Sketcher.Constraint("Vertical", 7),
    Sketcher.Constraint("Horizontal", 8),
    Sketcher.Constraint("Vertical", 9),
    Sketcher.Constraint("Horizontal", 10),
    Sketcher.Constraint("Vertical", 11),
    Sketcher.Constraint("Symmetric", 1, 2, 2, 2, -1, 1),
    Sketcher.Constraint("Symmetric", 6, 2, 9, 2, -1, 1),
    Sketcher.Constraint("Symmetric", 5, 2, 10, 2, -2),
    Sketcher.Constraint("Horizontal", 0, 2, 3, 2),
    Sketcher.Constraint("DistanceX", 8, 2, 8, 1, Q("12 mm")),
    Sketcher.Constraint("DistanceX", 6, 1, 6, 2, Q("0.8 mm")),
    Sketcher.Constraint("DistanceY", 1, 2, 1, 1, Q("3.1 mm")),
    Sketcher.Constraint("DistanceY", 7, 1, 7, 2, Q("5.5 mm")),
    Sketcher.Constraint("DistanceX", 2, 1, 2, 2, Q("0.95 mm")),
])
sketch10.setExpression("Constraints[28]", "Params.sketch10_width")
sketch10.setExpression("Constraints[29]", "Params.sketch10_width2")
sketch10.setExpression("Constraints[30]", "Params.sketch10_height")
sketch10.setExpression("Constraints[31]", "Params.sketch10_height2")
sketch10.setExpression("Constraints[32]", "Params.sketch10_width3")
pad10 = body.newObject("PartDesign::Pad", "Pad009")
pad10.Profile = sketch10
pad10.setExpression("Length", "Params.pad10_length")

sketch11 = body.newObject("Sketcher::SketchObject", "Sketch010")
sketch11.AttachmentSupport = (doc.getObject("XZ_Plane"), [""])
sketch11.MapMode = "FlatFace"
sketch11.AttachmentOffset = App.Placement(App.Vector(0, 0, 5.2), App.Rotation())
sketch11.addGeometry([
    Part.LineSegment(App.Vector(-6, 6, 0), App.Vector(-6, 0, 0)),
    Part.LineSegment(App.Vector(-6, 0, 0), App.Vector(6, 0, 0)),
    Part.LineSegment(App.Vector(6, 0, 0), App.Vector(6, 6, 0)),
    Part.LineSegment(App.Vector(6, 6, 0), App.Vector(-6, 6, 0)),
], False)
sketch11.addConstraint([
    Sketcher.Constraint("Coincident", 0, 2, 1, 1),
    Sketcher.Constraint("Coincident", 1, 2, 2, 1),
    Sketcher.Constraint("Coincident", 2, 2, 3, 1),
    Sketcher.Constraint("Coincident", 3, 2, 0, 1),
    Sketcher.Constraint("Vertical", 0),
    Sketcher.Constraint("Horizontal", 1),
    Sketcher.Constraint("Vertical", 2),
    Sketcher.Constraint("Horizontal", 3),
    Sketcher.Constraint("Symmetric", 0, 2, 1, 2, -1, 1),
    Sketcher.Constraint("DistanceX", 1, 1, 1, 2, Q("12 mm")),
    Sketcher.Constraint("DistanceY", 0, 2, 0, 1, Q("5.5 mm")),
])
sketch11.setExpression("Constraints[9]", "Params.sketch11_width")
sketch11.setExpression("Constraints[10]", "Params.sketch11_height")
pad11 = body.newObject("PartDesign::Pad", "Pad010")
pad11.Profile = sketch11
pad11.setExpression("Length", "Params.pad11_length")

sketch12 = body.newObject("Sketcher::SketchObject", "Sketch011")
sketch12.AttachmentSupport = (doc.getObject("XY_Plane"), [""])
sketch12.MapMode = "FlatFace"
sketch12.AttachmentOffset = App.Placement(App.Vector(0, 0, 3.1), App.Rotation())
sketch12.addGeometry([
    Part.LineSegment(App.Vector(1.9, 0.5, 0), App.Vector(1.2, 0.5, 0)),
    Part.LineSegment(App.Vector(1.2, 0.5, 0), App.Vector(1.2, 2.8, 0)),
    Part.LineSegment(App.Vector(1.2, 2.8, 0), App.Vector(0.5, 2.8, 0)),
    Part.LineSegment(App.Vector(0.5, 2.8, 0), App.Vector(0.5, 5.2, 0)),
    Part.LineSegment(App.Vector(0.5, 5.2, 0), App.Vector(5.2, 5.2, 0)),
    Part.LineSegment(App.Vector(5.2, 5.2, 0), App.Vector(5.2, -5.2, 0)),
    Part.LineSegment(App.Vector(5.2, -5.2, 0), App.Vector(0.5, -5.2, 0)),
    Part.LineSegment(App.Vector(0.5, -5.2, 0), App.Vector(0.5, -2.8, 0)),
    Part.LineSegment(App.Vector(0.5, -2.8, 0), App.Vector(1.2, -2.8, 0)),
    Part.LineSegment(App.Vector(1.2, -2.8, 0), App.Vector(1.2, -0.5, 0)),
    Part.LineSegment(App.Vector(1.2, -0.5, 0), App.Vector(1.9, -0.5, 0)),
    Part.LineSegment(App.Vector(1.9, -0.5, 0), App.Vector(1.9, -2.1, 0)),
    Part.LineSegment(App.Vector(1.9, -2.1, 0), App.Vector(2.8, -2.1, 0)),
    Part.LineSegment(App.Vector(2.8, -2.1, 0), App.Vector(2.8, 2.1, 0)),
    Part.LineSegment(App.Vector(2.8, 2.1, 0), App.Vector(1.9, 2.1, 0)),
    Part.LineSegment(App.Vector(1.9, 2.1, 0), App.Vector(1.9, 0.5, 0)),
], False)
sketch12.addConstraint([
    Sketcher.Constraint("Coincident", 0, 2, 1, 1),
    Sketcher.Constraint("Coincident", 1, 2, 2, 1),
    Sketcher.Constraint("Coincident", 2, 2, 3, 1),
    Sketcher.Constraint("Coincident", 3, 2, 4, 1),
    Sketcher.Constraint("Coincident", 4, 2, 5, 1),
    Sketcher.Constraint("Coincident", 5, 2, 6, 1),
    Sketcher.Constraint("Coincident", 6, 2, 7, 1),
    Sketcher.Constraint("Coincident", 7, 2, 8, 1),
    Sketcher.Constraint("Coincident", 8, 2, 9, 1),
    Sketcher.Constraint("Coincident", 9, 2, 10, 1),
    Sketcher.Constraint("Coincident", 10, 2, 11, 1),
    Sketcher.Constraint("Coincident", 11, 2, 12, 1),
    Sketcher.Constraint("Coincident", 12, 2, 13, 1),
    Sketcher.Constraint("Coincident", 13, 2, 14, 1),
    Sketcher.Constraint("Coincident", 14, 2, 15, 1),
    Sketcher.Constraint("Coincident", 15, 2, 0, 1),
    Sketcher.Constraint("Horizontal", 0),
    Sketcher.Constraint("Vertical", 1),
    Sketcher.Constraint("Horizontal", 2),
    Sketcher.Constraint("Vertical", 3),
    Sketcher.Constraint("Horizontal", 4),
    Sketcher.Constraint("Vertical", 5),
    Sketcher.Constraint("Horizontal", 6),
    Sketcher.Constraint("Vertical", 7),
    Sketcher.Constraint("Horizontal", 8),
    Sketcher.Constraint("Vertical", 9),
    Sketcher.Constraint("Horizontal", 10),
    Sketcher.Constraint("Vertical", 11),
    Sketcher.Constraint("Horizontal", 12),
    Sketcher.Constraint("Vertical", 13),
    Sketcher.Constraint("Horizontal", 14),
    Sketcher.Constraint("Vertical", 15),
    Sketcher.Constraint("Symmetric", 3, 2, 6, 2, -1),
    Sketcher.Constraint("Symmetric", 1, 2, 8, 2, -1),
    Sketcher.Constraint("Symmetric", 11, 2, 14, 2, -1),
    Sketcher.Constraint("Equal", 1, 9),
    Sketcher.Constraint("DistanceX", 2, 2, 2, 1, Q("0.7 mm")),
    Sketcher.Constraint("DistanceX", 12, 1, 12, 2, Q("0.9 mm")),
    Sketcher.Constraint("DistanceY", 3, 1, 3, 2, Q("2.4 mm")),
    Sketcher.Constraint("DistanceY", 5, 2, 5, 1, Q("10.4 mm")),
    Sketcher.Constraint("DistanceY", 13, 1, 13, 2, Q("4.3 mm")),
    Sketcher.Constraint("DistanceX", -1, 1, 4, 2, Q("5.2 mm")),
    Sketcher.Constraint("DistanceX", -1, 1, 10, 2, Q("1.9 mm")),
    Sketcher.Constraint("DistanceX", 0, 2, 0, 1, Q("0.725 mm")),
    Sketcher.Constraint("DistanceY", 1, 1, 1, 2, Q("2.325 mm")),
])
sketch12.setExpression("Constraints[36]", "Params.sketch12_width")
sketch12.setExpression("Constraints[37]", "Params.sketch12_width2")
sketch12.setExpression("Constraints[38]", "Params.sketch12_height")
sketch12.setExpression("Constraints[39]", "Params.sketch12_height2")
sketch12.setExpression("Constraints[40]", "Params.sketch12_height3")
pocket1 = body.newObject("PartDesign::Pocket", "Pocket")
pocket1.Profile = sketch12
pocket1.setExpression("Length", "Params.pocket1_length")
pocket1.Reversed = True

sketch13 = body.newObject("Sketcher::SketchObject", "Sketch012")
sketch13.AttachmentSupport = (doc.getObject("YZ_Plane"), [""])
sketch13.MapMode = "FlatFace"
sketch13.AttachmentOffset = App.Placement(App.Vector(0, 0, 0.475), App.Rotation())
sketch13.addGeometry([
    Part.LineSegment(App.Vector(1.9, 4.7, 0), App.Vector(1.9, 3.1, 0)),
    Part.LineSegment(App.Vector(1.9, 3.1, 0), App.Vector(0.5, 3.1, 0)),
    Part.LineSegment(App.Vector(0.5, 3.1, 0), App.Vector(0.5, 4.7, 0)),
    Part.LineSegment(App.Vector(0.5, 4.7, 0), App.Vector(1.9, 4.7, 0)),
], False)
sketch13.addConstraint([
    Sketcher.Constraint("Coincident", 0, 2, 1, 1),
    Sketcher.Constraint("Coincident", 1, 2, 2, 1),
    Sketcher.Constraint("Coincident", 2, 2, 3, 1),
    Sketcher.Constraint("Coincident", 3, 2, 0, 1),
    Sketcher.Constraint("Vertical", 0),
    Sketcher.Constraint("Horizontal", 1),
    Sketcher.Constraint("Vertical", 2),
    Sketcher.Constraint("Horizontal", 3),
    Sketcher.Constraint("DistanceY", 0, 2, 0, 1, Q("1.6 mm")),
    Sketcher.Constraint("DistanceX", -1, 1, 0, 2, Q("1.9 mm")),
    Sketcher.Constraint("DistanceY", -1, 1, 0, 2, Q("3.1 mm")),
    Sketcher.Constraint("DistanceX", 1, 2, 1, 1, Q("1.425 mm")),
])
sketch13.setExpression("Constraints[8]", "Params.sketch13_height")
pocket2 = body.newObject("PartDesign::Pocket", "Pocket001")
pocket2.Profile = sketch13
pocket2.Type = "UpToFirst"
pocket2.Reversed = True

sketch14 = body.newObject("Sketcher::SketchObject", "Sketch013")
sketch14.AttachmentSupport = (doc.getObject("YZ_Plane"), [""])
sketch14.MapMode = "FlatFace"
sketch14.AttachmentOffset = App.Placement(App.Vector(0, 0, 0.475), App.Rotation())
sketch14.addGeometry([
    Part.LineSegment(App.Vector(-0.5, 4.7, 0), App.Vector(-0.5, 3.1, 0)),
    Part.LineSegment(App.Vector(-0.5, 3.1, 0), App.Vector(-1.9, 3.1, 0)),
    Part.LineSegment(App.Vector(-1.9, 3.1, 0), App.Vector(-1.9, 4.7, 0)),
    Part.LineSegment(App.Vector(-1.9, 4.7, 0), App.Vector(-0.5, 4.7, 0)),
], False)
sketch14.addConstraint([
    Sketcher.Constraint("Coincident", 0, 2, 1, 1),
    Sketcher.Constraint("Coincident", 1, 2, 2, 1),
    Sketcher.Constraint("Coincident", 2, 2, 3, 1),
    Sketcher.Constraint("Coincident", 3, 2, 0, 1),
    Sketcher.Constraint("Vertical", 0),
    Sketcher.Constraint("Horizontal", 1),
    Sketcher.Constraint("Vertical", 2),
    Sketcher.Constraint("Horizontal", 3),
    Sketcher.Constraint("DistanceY", 0, 2, 0, 1, Q("1.6 mm")),
    Sketcher.Constraint("DistanceY", -1, 1, 0, 2, Q("3.1 mm")),
    Sketcher.Constraint("DistanceX", 1, 2, -1, 1, Q("1.9 mm")),
    Sketcher.Constraint("DistanceX", 1, 2, 1, 1, Q("1.425 mm")),
])
sketch14.setExpression("Constraints[8]", "Params.sketch14_height")
pocket3 = body.newObject("PartDesign::Pocket", "Pocket002")
pocket3.Profile = sketch14
pocket3.Type = "UpToFirst"
pocket3.Reversed = True

sketch15 = body.newObject("Sketcher::SketchObject", "Sketch014")
sketch15.AttachmentSupport = (doc.getObject("XY_Plane"), [""])
sketch15.MapMode = "FlatFace"
sketch15.AttachmentOffset = App.Placement(App.Vector(0, 0, 3.1), App.Rotation())
sketch15.addGeometry([
    Part.LineSegment(App.Vector(-0.5, 0.5, 0), App.Vector(-1.9, 0.5, 0)),
    Part.LineSegment(App.Vector(-1.9, 0.5, 0), App.Vector(-1.9, 2.1, 0)),
    Part.LineSegment(App.Vector(-1.9, 2.1, 0), App.Vector(-2.8, 2.1, 0)),
    Part.LineSegment(App.Vector(-2.8, 2.1, 0), App.Vector(-2.8, -2.1, 0)),
    Part.LineSegment(App.Vector(-2.8, -2.1, 0), App.Vector(-1.9, -2.1, 0)),
    Part.LineSegment(App.Vector(-1.9, -2.1, 0), App.Vector(-1.9, -0.5, 0)),
    Part.LineSegment(App.Vector(-1.9, -0.5, 0), App.Vector(-0.5, -0.5, 0)),
    Part.LineSegment(App.Vector(-0.5, -0.5, 0), App.Vector(-0.5, -1.9, 0)),
    Part.LineSegment(App.Vector(-0.5, -1.9, 0), App.Vector(-1.2, -1.9, 0)),
    Part.LineSegment(App.Vector(-1.2, -1.9, 0), App.Vector(-1.2, -2.8, 0)),
    Part.LineSegment(App.Vector(-1.2, -2.8, 0), App.Vector(-0.5, -2.8, 0)),
    Part.LineSegment(App.Vector(-0.5, -2.8, 0), App.Vector(-0.5, -5.2, 0)),
    Part.LineSegment(App.Vector(-0.5, -5.2, 0), App.Vector(-5.2, -5.2, 0)),
    Part.LineSegment(App.Vector(-5.2, -5.2, 0), App.Vector(-5.2, 5.2, 0)),
    Part.LineSegment(App.Vector(-5.2, 5.2, 0), App.Vector(-0.5, 5.2, 0)),
    Part.LineSegment(App.Vector(-0.5, 5.2, 0), App.Vector(-0.5, 2.8, 0)),
    Part.LineSegment(App.Vector(-0.5, 2.8, 0), App.Vector(-1.2, 2.8, 0)),
    Part.LineSegment(App.Vector(-1.2, 2.8, 0), App.Vector(-1.2, 1.9, 0)),
    Part.LineSegment(App.Vector(-1.2, 1.9, 0), App.Vector(-0.5, 1.9, 0)),
    Part.LineSegment(App.Vector(-0.5, 1.9, 0), App.Vector(-0.5, 0.5, 0)),
], False)
sketch15.addConstraint([
    Sketcher.Constraint("Coincident", 0, 2, 1, 1),
    Sketcher.Constraint("Coincident", 1, 2, 2, 1),
    Sketcher.Constraint("Coincident", 2, 2, 3, 1),
    Sketcher.Constraint("Coincident", 3, 2, 4, 1),
    Sketcher.Constraint("Coincident", 4, 2, 5, 1),
    Sketcher.Constraint("Coincident", 5, 2, 6, 1),
    Sketcher.Constraint("Coincident", 6, 2, 7, 1),
    Sketcher.Constraint("Coincident", 7, 2, 8, 1),
    Sketcher.Constraint("Coincident", 8, 2, 9, 1),
    Sketcher.Constraint("Coincident", 9, 2, 10, 1),
    Sketcher.Constraint("Coincident", 10, 2, 11, 1),
    Sketcher.Constraint("Coincident", 11, 2, 12, 1),
    Sketcher.Constraint("Coincident", 12, 2, 13, 1),
    Sketcher.Constraint("Coincident", 13, 2, 14, 1),
    Sketcher.Constraint("Coincident", 14, 2, 15, 1),
    Sketcher.Constraint("Coincident", 15, 2, 16, 1),
    Sketcher.Constraint("Coincident", 16, 2, 17, 1),
    Sketcher.Constraint("Coincident", 17, 2, 18, 1),
    Sketcher.Constraint("Coincident", 18, 2, 19, 1),
    Sketcher.Constraint("Coincident", 19, 2, 0, 1),
    Sketcher.Constraint("Horizontal", 0),
    Sketcher.Constraint("Vertical", 1),
    Sketcher.Constraint("Horizontal", 2),
    Sketcher.Constraint("Vertical", 3),
    Sketcher.Constraint("Horizontal", 4),
    Sketcher.Constraint("Vertical", 5),
    Sketcher.Constraint("Horizontal", 6),
    Sketcher.Constraint("Vertical", 7),
    Sketcher.Constraint("Horizontal", 8),
    Sketcher.Constraint("Vertical", 9),
    Sketcher.Constraint("Horizontal", 10),
    Sketcher.Constraint("Vertical", 11),
    Sketcher.Constraint("Horizontal", 12),
    Sketcher.Constraint("Vertical", 13),
    Sketcher.Constraint("Horizontal", 14),
    Sketcher.Constraint("Vertical", 15),
    Sketcher.Constraint("Horizontal", 16),
    Sketcher.Constraint("Vertical", 17),
    Sketcher.Constraint("Horizontal", 18),
    Sketcher.Constraint("Vertical", 19),
    Sketcher.Constraint("Symmetric", 1, 2, 4, 2, -1),
    Sketcher.Constraint("Symmetric", 11, 2, 14, 2, -1),
    Sketcher.Constraint("Symmetric", 9, 2, 16, 2, -1),
    Sketcher.Constraint("Symmetric", 7, 2, 18, 2, -1),
    Sketcher.Constraint("Vertical", 7, 2, 10, 2),
    Sketcher.Constraint("Equal", 1, 5),
    Sketcher.Constraint("Equal", 6, 7),
    Sketcher.Constraint("Equal", 4, 9),
    Sketcher.Constraint("DistanceX", 2, 2, 2, 1, Q("0.9 mm")),
    Sketcher.Constraint("DistanceX", 8, 2, 8, 1, Q("0.7 mm")),
    Sketcher.Constraint("DistanceY", 3, 2, 3, 1, Q("4.3 mm")),
    Sketcher.Constraint("DistanceY", 11, 2, 11, 1, Q("2.4 mm")),
    Sketcher.Constraint("DistanceY", 13, 1, 13, 2, Q("10.4 mm")),
    Sketcher.Constraint("DistanceX", 0, 2, -1, 1, Q("1.9 mm")),
    Sketcher.Constraint("DistanceX", 12, 2, -1, 1, Q("5.2 mm")),
    Sketcher.Constraint("DistanceX", 0, 2, 0, 1, Q("1.425 mm")),
])
sketch15.setExpression("Constraints[48]", "Params.sketch15_width")
sketch15.setExpression("Constraints[49]", "Params.sketch15_width2")
sketch15.setExpression("Constraints[50]", "Params.sketch15_height")
sketch15.setExpression("Constraints[51]", "Params.sketch15_height2")
sketch15.setExpression("Constraints[52]", "Params.sketch15_height3")
pocket4 = body.newObject("PartDesign::Pocket", "Pocket003")
pocket4.Profile = sketch15
pocket4.setExpression("Length", "Params.pocket4_length")
pocket4.Reversed = True
doc.recompute()

fillet = body.newObject("PartDesign::Fillet", "Fillet")
fillet.Base = (pocket4, edges_at(pocket4, [
    (-6, 0, 5.5),
    (-6, 6, 2.75),
    (6, -6, 2.75),
    (0, -6, 5.5),
    (-6, -6, 2.75),
    (0, 6, 5.5),
    (6, 6, 2.75),
    (6, 0, 5.5),
]))
fillet.setExpression("Radius", "Params.fillet_radius")

doc.recompute()
